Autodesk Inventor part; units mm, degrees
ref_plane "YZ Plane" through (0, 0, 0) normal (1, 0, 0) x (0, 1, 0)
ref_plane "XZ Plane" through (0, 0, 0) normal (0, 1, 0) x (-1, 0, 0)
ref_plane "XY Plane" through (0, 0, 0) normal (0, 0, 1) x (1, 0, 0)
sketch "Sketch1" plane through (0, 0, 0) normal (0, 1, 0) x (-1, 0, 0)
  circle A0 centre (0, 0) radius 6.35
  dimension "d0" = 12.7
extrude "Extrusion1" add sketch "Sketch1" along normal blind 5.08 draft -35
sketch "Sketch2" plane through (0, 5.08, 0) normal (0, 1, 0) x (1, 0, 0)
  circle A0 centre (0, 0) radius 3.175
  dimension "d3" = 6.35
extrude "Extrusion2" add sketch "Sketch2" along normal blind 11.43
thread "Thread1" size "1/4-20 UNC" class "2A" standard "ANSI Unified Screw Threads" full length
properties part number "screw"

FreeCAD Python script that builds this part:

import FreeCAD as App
import Part
import Sketcher
Q = App.Units.Quantity

doc = App.newDocument("Part")
body = doc.addObject("PartDesign::Body", "Body")

# Sketch on XZ plane
sketch1 = body.newObject("Sketcher::SketchObject", "Sketch")
sketch1.AttachmentSupport = (doc.getObject("XZ_Plane"), [""])
sketch1.MapMode = "FlatFace"
sketch1.addGeometry(Part.Circle(App.Vector(0, 0, 0), App.Vector(0, 0, 1), 6), False)
sketch1.addConstraint([
    Sketcher.Constraint("Coincident", 0, 3, -1, 1),
    Sketcher.Constraint("Diameter", 0, Q("0.5 in")),
])
pad1 = body.newObject("PartDesign::Pad", "Pad")
pad1.Profile = sketch1
pad1.Length = Q("0.2 in")
pad1.Reversed = True
pad1.TaperAngle = -35

# Sketch on XZ plane
sketch2 = body.newObject("Sketcher::SketchObject", "Sketch001")
sketch2.AttachmentSupport = (doc.getObject("XZ_Plane"), [""])
sketch2.MapMode = "FlatFace"
sketch2.AttachmentOffset = App.Placement(App.Vector(0, 0, -0.2 * 25.4), App.Rotation())
sketch2.addGeometry(Part.Circle(App.Vector(0, 0, 0), App.Vector(0, 0, 1), 3.2), False)
sketch2.addConstraint([
    Sketcher.Constraint("Coincident", 0, 3, -1, 1),
    Sketcher.Constraint("Diameter", 0, Q("0.25 in")),
])
pad2 = body.newObject("PartDesign::Pad", "Pad001")
pad2.Profile = sketch2
pad2.Length = Q("0.45 in")
pad2.Reversed = True

doc.recompute()
